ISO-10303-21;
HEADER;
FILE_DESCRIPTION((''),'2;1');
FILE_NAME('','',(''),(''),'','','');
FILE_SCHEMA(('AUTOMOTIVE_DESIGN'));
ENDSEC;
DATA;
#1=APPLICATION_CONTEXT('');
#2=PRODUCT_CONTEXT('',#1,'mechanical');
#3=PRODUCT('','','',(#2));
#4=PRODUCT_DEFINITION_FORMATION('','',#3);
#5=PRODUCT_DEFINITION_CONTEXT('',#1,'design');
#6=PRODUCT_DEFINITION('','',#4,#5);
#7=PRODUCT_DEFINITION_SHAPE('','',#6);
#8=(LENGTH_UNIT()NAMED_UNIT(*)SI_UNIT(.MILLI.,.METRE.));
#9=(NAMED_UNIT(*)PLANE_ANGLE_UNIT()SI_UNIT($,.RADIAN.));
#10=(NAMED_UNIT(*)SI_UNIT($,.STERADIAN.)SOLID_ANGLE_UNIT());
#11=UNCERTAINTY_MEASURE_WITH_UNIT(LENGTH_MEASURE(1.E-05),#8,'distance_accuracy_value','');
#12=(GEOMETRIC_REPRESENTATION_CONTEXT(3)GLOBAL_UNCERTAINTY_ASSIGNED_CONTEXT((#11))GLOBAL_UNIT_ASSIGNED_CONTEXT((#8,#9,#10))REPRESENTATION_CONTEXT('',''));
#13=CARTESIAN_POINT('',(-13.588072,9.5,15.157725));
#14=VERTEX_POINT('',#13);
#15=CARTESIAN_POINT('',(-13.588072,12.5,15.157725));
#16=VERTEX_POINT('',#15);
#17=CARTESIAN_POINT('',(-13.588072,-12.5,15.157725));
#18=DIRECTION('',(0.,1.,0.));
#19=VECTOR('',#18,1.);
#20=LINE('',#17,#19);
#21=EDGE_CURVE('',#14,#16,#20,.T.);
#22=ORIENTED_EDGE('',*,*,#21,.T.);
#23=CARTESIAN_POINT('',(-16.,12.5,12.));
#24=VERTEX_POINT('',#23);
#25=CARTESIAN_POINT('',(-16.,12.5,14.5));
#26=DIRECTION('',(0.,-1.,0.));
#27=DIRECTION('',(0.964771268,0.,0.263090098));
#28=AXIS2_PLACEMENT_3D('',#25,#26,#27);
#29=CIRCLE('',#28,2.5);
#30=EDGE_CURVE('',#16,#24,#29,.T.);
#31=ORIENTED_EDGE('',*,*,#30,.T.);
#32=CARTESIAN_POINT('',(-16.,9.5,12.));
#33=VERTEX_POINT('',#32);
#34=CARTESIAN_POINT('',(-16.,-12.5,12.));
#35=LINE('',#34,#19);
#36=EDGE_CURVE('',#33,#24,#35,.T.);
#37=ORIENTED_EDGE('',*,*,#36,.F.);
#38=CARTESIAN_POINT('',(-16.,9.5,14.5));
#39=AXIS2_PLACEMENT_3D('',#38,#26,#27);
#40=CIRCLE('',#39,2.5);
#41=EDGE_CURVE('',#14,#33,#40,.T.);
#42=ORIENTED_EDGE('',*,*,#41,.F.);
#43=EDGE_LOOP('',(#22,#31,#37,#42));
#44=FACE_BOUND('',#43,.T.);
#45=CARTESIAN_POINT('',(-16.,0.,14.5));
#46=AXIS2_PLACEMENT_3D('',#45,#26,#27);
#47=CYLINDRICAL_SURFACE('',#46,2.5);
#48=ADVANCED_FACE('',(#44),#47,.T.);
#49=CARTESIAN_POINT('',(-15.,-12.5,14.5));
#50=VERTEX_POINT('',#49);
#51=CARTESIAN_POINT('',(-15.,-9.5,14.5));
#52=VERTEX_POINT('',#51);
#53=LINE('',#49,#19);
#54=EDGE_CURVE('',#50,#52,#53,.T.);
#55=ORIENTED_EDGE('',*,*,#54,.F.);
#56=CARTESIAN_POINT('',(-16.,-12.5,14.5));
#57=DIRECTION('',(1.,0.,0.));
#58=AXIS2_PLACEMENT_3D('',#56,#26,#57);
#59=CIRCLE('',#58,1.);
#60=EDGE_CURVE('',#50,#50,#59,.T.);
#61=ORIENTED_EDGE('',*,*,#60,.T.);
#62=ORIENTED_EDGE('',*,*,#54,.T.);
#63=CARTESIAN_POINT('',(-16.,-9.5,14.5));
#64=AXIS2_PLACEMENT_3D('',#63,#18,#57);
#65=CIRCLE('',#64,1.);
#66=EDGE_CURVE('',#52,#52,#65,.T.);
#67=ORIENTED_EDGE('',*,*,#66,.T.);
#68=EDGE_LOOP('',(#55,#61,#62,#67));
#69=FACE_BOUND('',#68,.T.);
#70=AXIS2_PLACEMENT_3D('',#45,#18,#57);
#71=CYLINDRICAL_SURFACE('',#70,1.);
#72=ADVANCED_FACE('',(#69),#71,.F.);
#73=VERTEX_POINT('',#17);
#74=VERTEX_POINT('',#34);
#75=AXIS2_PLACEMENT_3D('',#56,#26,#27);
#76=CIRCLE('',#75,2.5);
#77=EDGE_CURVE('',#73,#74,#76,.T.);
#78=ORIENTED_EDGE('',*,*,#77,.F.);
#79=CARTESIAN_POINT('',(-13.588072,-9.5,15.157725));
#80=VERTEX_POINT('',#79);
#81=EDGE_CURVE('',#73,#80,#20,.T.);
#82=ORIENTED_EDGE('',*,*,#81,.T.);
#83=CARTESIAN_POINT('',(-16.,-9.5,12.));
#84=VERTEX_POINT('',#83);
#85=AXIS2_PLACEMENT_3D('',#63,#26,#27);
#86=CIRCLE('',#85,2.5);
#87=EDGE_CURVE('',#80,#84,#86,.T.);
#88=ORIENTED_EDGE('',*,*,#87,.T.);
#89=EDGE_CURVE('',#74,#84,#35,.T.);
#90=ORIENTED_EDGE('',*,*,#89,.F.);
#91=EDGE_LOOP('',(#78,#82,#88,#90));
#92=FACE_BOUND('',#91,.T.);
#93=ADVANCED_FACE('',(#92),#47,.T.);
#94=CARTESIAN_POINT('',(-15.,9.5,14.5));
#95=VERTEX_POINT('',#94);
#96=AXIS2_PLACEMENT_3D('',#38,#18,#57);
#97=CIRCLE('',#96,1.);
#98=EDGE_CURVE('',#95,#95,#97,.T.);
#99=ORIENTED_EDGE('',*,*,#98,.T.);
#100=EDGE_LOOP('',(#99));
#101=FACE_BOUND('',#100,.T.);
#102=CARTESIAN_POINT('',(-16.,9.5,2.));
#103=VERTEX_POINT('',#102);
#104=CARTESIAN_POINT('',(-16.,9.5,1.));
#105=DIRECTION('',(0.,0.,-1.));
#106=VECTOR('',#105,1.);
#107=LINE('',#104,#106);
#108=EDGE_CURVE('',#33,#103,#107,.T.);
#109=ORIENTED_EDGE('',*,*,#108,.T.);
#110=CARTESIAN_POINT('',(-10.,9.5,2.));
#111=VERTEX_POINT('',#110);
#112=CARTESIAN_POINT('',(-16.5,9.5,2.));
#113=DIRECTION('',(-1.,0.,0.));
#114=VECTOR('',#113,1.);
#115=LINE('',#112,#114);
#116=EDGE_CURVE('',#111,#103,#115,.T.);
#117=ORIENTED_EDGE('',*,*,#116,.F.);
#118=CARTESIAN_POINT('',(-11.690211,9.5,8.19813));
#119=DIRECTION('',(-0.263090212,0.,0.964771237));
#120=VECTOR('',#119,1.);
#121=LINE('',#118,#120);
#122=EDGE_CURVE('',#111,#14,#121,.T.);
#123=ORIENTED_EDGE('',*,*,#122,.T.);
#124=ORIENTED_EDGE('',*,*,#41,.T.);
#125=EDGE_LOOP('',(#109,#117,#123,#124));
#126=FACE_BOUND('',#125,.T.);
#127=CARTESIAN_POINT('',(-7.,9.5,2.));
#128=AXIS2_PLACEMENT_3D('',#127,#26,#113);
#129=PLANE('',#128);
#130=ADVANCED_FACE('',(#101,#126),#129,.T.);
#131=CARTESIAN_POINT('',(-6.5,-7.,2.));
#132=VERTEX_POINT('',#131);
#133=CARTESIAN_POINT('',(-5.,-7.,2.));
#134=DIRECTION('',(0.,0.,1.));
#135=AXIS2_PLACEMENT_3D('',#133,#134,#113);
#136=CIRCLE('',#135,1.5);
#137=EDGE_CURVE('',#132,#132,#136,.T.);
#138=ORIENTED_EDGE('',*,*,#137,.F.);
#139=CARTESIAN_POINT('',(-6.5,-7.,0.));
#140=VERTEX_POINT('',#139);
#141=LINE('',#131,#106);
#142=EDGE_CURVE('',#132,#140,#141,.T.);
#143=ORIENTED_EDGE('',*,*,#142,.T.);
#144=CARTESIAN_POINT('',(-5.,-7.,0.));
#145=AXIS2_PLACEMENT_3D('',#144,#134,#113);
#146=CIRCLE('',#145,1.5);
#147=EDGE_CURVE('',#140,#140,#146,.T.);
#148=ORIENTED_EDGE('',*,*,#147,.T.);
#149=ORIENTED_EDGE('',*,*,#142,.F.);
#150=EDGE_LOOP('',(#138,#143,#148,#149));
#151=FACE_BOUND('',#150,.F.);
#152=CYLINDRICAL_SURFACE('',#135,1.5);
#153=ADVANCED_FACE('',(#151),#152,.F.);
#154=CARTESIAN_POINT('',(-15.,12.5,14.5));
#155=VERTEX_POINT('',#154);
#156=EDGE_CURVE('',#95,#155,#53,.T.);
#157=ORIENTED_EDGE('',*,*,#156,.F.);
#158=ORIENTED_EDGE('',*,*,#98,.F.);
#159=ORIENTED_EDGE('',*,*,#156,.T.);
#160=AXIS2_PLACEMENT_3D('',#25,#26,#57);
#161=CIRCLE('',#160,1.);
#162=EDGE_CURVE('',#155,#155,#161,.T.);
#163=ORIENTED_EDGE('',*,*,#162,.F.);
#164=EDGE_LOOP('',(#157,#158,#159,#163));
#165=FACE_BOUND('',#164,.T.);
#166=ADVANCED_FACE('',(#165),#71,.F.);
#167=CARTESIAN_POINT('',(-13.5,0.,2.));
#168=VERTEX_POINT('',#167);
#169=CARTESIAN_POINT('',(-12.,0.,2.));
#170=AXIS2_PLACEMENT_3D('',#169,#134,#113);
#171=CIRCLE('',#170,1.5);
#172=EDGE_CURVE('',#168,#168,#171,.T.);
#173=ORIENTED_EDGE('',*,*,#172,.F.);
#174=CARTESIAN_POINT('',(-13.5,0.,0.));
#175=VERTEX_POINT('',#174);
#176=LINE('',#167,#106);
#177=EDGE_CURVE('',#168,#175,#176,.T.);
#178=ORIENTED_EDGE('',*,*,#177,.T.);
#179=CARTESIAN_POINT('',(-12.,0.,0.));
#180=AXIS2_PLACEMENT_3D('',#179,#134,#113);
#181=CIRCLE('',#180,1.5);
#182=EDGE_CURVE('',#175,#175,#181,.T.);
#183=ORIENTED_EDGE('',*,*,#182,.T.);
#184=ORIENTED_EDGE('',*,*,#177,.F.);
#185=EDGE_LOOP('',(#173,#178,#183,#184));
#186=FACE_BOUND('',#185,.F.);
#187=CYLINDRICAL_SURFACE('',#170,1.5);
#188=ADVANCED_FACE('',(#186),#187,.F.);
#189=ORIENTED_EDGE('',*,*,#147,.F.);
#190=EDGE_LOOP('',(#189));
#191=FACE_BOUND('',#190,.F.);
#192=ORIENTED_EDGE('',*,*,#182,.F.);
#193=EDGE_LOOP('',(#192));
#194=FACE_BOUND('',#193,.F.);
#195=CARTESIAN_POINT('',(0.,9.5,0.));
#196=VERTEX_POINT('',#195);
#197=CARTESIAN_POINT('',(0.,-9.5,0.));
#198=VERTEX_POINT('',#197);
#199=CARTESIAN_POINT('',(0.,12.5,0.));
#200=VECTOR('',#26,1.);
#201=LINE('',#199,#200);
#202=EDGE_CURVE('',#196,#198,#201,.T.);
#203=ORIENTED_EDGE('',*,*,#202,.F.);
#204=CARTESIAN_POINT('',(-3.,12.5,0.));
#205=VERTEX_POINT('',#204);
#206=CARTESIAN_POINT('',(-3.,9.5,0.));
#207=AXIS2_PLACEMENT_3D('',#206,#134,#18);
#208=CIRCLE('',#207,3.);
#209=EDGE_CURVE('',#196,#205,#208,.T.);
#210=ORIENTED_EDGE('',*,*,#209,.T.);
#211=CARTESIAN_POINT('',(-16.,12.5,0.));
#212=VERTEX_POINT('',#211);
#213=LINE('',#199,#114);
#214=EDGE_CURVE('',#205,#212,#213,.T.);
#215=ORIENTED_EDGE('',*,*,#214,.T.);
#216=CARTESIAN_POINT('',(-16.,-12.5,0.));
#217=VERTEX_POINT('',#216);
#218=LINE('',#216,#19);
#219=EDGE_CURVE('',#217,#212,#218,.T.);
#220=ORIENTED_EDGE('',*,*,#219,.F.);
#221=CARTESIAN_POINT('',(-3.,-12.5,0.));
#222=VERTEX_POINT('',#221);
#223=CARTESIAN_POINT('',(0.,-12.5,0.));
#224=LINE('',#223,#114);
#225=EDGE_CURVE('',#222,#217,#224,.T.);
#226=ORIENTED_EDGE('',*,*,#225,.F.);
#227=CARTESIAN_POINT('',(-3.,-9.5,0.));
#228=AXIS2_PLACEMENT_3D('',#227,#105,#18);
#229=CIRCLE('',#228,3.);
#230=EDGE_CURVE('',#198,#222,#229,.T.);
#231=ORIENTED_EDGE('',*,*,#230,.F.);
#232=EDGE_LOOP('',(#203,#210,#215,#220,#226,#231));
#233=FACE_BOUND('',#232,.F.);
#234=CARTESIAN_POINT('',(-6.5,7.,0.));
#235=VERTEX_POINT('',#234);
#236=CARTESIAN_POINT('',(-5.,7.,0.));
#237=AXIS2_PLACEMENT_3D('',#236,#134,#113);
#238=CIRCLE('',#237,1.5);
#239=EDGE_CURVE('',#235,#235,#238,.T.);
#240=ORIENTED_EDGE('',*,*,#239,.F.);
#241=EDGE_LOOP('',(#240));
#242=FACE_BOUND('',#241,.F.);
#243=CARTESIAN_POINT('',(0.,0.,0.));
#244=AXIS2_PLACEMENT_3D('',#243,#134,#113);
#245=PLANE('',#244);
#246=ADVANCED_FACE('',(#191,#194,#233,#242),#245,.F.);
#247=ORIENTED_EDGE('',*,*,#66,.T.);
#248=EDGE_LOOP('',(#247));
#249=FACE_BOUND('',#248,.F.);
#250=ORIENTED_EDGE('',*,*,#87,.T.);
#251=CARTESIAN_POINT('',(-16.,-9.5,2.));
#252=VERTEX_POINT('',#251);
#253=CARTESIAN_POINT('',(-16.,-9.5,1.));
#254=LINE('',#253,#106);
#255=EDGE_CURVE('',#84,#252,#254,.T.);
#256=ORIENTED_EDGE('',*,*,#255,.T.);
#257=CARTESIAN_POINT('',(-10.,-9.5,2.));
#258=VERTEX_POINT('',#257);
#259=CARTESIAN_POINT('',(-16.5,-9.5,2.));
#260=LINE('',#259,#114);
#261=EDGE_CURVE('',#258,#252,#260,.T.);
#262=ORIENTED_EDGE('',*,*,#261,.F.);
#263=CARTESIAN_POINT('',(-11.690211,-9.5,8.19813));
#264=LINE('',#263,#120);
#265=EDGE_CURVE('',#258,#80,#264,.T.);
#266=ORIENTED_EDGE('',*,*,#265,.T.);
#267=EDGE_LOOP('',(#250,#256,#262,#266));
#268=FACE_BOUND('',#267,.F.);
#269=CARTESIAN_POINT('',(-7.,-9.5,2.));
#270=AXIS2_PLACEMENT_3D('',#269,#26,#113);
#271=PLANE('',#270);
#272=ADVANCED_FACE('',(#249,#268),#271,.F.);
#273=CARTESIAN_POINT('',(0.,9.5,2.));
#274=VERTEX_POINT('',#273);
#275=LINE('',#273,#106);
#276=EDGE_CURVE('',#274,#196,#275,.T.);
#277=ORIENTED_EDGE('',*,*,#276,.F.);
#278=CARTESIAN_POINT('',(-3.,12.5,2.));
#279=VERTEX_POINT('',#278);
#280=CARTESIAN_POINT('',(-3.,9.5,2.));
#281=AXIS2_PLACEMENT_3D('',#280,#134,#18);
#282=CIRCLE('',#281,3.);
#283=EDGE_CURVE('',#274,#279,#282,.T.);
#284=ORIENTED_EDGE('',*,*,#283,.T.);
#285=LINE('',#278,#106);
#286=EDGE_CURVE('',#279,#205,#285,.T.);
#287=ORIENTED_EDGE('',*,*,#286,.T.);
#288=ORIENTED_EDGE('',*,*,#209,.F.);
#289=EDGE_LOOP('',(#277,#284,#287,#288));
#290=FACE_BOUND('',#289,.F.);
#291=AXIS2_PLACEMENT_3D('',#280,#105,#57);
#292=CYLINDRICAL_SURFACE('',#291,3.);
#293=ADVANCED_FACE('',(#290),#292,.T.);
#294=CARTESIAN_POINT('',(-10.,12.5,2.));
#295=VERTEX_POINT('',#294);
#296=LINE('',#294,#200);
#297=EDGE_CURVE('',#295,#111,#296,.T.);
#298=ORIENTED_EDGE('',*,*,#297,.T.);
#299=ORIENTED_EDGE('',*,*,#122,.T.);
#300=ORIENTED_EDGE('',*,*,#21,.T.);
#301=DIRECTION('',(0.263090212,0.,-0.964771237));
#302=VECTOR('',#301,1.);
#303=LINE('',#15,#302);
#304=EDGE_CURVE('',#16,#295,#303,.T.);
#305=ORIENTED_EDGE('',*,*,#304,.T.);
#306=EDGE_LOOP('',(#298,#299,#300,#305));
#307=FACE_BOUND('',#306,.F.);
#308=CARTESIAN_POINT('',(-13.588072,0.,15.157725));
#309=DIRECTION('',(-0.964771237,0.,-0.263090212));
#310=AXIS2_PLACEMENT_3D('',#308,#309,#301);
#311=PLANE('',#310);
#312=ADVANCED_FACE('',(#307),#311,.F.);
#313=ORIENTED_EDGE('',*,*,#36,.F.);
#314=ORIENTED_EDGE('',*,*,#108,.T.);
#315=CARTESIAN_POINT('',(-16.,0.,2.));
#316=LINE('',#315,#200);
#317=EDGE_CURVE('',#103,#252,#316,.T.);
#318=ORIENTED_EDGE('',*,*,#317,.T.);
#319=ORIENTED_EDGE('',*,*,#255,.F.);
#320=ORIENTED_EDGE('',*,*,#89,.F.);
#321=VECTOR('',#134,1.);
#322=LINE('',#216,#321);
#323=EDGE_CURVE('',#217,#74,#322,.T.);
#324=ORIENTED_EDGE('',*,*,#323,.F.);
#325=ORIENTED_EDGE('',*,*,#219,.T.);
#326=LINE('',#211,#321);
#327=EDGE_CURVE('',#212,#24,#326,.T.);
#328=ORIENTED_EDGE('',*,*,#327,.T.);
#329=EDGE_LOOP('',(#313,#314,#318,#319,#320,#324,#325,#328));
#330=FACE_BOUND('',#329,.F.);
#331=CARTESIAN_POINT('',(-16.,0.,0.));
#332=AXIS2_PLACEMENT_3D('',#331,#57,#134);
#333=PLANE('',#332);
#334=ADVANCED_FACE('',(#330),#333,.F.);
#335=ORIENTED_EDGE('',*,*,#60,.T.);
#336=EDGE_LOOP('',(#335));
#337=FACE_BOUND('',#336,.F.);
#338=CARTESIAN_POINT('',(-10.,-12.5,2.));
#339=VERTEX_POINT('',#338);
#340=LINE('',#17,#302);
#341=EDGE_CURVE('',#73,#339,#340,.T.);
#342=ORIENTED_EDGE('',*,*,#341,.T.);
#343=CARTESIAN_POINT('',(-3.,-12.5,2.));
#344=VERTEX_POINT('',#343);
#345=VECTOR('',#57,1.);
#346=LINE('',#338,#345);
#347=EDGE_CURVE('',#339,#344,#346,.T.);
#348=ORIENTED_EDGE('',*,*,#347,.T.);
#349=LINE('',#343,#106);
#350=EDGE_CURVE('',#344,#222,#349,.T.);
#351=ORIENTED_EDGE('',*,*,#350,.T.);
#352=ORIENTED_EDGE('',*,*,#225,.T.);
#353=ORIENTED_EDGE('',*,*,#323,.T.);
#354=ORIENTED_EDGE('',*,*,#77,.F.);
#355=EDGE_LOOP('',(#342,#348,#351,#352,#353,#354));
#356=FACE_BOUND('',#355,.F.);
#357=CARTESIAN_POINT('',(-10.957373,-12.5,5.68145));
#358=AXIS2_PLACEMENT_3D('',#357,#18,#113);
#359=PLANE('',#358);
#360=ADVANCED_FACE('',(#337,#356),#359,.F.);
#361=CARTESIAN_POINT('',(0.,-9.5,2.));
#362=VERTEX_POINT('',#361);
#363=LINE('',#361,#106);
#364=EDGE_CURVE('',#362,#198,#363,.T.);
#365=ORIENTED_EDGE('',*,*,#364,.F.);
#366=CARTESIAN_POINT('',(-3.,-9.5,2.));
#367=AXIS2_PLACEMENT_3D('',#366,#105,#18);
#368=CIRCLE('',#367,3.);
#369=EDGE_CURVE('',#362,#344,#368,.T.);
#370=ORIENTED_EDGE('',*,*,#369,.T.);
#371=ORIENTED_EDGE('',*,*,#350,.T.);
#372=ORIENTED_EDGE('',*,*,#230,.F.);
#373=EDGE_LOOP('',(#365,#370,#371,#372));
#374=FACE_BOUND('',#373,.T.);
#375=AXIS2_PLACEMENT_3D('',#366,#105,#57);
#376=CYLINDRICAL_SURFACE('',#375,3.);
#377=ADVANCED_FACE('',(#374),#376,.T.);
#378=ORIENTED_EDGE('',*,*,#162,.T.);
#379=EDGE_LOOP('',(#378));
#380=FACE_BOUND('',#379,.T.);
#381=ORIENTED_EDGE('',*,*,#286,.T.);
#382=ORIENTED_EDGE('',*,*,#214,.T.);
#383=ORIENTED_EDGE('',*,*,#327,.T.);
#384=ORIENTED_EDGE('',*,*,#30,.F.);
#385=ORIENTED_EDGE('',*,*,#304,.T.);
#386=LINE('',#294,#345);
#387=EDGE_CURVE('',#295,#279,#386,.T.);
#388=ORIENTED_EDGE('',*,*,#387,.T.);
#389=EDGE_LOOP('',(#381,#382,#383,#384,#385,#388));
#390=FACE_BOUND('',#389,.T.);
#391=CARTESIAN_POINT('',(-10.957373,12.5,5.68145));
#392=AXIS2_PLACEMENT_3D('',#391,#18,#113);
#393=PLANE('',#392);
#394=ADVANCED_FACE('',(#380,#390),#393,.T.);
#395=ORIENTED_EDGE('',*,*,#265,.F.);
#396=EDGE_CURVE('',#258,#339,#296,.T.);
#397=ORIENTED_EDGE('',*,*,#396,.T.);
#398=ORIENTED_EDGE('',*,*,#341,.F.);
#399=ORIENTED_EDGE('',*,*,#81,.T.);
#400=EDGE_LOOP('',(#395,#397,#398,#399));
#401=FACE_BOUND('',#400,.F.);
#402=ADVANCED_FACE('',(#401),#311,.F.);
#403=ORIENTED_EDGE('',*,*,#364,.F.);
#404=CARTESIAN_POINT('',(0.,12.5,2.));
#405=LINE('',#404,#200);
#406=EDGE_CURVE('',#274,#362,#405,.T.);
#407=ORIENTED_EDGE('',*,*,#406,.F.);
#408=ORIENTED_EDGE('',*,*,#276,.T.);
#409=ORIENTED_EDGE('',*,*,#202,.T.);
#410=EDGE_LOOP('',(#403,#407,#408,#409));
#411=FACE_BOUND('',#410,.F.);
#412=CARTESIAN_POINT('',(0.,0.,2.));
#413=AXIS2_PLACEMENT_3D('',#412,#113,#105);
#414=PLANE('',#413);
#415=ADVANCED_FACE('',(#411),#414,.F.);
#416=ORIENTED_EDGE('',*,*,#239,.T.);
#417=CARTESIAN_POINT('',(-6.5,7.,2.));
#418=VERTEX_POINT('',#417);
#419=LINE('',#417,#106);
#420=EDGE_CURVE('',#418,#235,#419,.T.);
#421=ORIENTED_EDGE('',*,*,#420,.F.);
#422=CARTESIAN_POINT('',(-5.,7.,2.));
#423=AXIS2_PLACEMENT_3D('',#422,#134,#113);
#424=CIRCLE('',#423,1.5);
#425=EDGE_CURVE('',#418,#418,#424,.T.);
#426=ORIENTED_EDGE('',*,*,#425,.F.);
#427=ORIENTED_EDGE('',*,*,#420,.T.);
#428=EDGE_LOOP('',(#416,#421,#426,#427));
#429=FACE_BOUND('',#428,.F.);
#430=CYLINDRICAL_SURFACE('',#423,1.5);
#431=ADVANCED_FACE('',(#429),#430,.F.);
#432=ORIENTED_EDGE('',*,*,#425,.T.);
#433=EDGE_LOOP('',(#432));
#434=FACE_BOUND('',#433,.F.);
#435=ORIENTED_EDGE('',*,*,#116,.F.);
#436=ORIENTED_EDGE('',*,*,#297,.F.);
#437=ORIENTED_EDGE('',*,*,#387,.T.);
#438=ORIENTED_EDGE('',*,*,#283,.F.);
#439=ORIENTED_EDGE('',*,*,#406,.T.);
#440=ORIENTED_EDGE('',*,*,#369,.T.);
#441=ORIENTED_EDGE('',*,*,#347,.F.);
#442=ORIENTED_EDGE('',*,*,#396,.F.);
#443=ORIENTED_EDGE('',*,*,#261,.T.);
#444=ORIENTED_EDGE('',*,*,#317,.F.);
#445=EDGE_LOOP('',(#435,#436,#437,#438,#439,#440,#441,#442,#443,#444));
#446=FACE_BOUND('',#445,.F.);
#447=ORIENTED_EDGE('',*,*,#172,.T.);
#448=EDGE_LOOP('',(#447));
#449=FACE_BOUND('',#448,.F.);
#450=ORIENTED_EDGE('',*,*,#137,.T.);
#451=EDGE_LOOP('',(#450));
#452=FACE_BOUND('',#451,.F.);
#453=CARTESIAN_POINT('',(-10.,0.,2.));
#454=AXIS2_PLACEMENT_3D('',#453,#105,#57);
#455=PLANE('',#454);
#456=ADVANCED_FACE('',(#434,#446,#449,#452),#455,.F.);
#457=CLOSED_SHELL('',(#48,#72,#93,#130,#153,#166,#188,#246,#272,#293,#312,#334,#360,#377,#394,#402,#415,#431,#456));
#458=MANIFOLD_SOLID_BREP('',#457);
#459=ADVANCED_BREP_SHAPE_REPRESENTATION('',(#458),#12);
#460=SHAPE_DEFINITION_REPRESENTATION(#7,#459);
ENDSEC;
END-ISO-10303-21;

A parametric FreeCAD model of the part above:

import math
import FreeCAD as App
import Part
import Sketcher


def edges_at(feature, points):
    """Names of the edges that pass closest to the given points."""
    edges = feature.Shape.Edges
    near = lambda p: min(range(len(edges)), key=lambda i: edges[i].distToShape(Part.Vertex(*p))[0])
    return sorted({f"Edge{near(p) + 1}" for p in points})

doc = App.newDocument("Part")
body = doc.addObject("PartDesign::Body", "Body")

# Sketch on XZ plane
sketch1 = doc.addObject("Sketcher::SketchObject", "Sketch")
body.addObject(sketch1)
sketch1.AttachmentSupport = (doc.XZ_Plane, [""])
sketch1.MapMode = "FlatFace"
sketch1.addGeometry([
    Part.LineSegment(App.Vector(-16, 0, 0), App.Vector(0, 0, 0)),  # 0
    Part.LineSegment(App.Vector(0, 0, 0), App.Vector(0, 2, 0)),  # 1
    Part.LineSegment(App.Vector(0, 2, 0), App.Vector(-10, 2, 0)),  # 2
    Part.LineSegment(App.Vector(-10, 2, 0), App.Vector(-13.6, 15.2, 0)),  # 3
    Part.ArcOfCircle(Part.Circle(App.Vector(-16, 14.5, 0), App.Vector(0, 0, 1), 2.5), math.radians(15), math.radians(270)),  # 4
    Part.LineSegment(App.Vector(-16, 12, 0), App.Vector(-16, 0, 0)),  # 5
    Part.Circle(App.Vector(-16, 14.5, 0), App.Vector(0, 0, 1), 1),  # 6
], False)
sketch1.addConstraint([
    Sketcher.Constraint("Coincident", 0, 2, 1, 1),
    Sketcher.Constraint("Coincident", 1, 2, 2, 1),
    Sketcher.Constraint("Coincident", 2, 2, 3, 1),
    Sketcher.Constraint("Tangent", 3, 2, 4, 1),
    Sketcher.Constraint("Coincident", 4, 2, 5, 1),
    Sketcher.Constraint("Coincident", 5, 2, 0, 1),
    Sketcher.Constraint("Horizontal", 0),
    Sketcher.Constraint("Vertical", 1),
    Sketcher.Constraint("Horizontal", 2),
    Sketcher.Constraint("Vertical", 5),
    Sketcher.Constraint("Coincident", 0, 2, -1, 1),
    Sketcher.Constraint("Coincident", 6, 3, 4, 3),
    Sketcher.Constraint("Vertical", 6, 3, 4, 2),
    Sketcher.Constraint("Diameter", 6, 2.0),
    Sketcher.Constraint("Radius", 4, 2.5),
    Sketcher.Constraint("DistanceX", 0, 1, 0, 2, 16.0),
    Sketcher.Constraint("DistanceX", 2, 2, 2, 1, 10.0),
    Sketcher.Constraint("DistanceY", 1, 1, 1, 2, 2.0),
    Sketcher.Constraint("DistanceY", 5, 2, 5, 1, 12.0),
])
pad1 = doc.addObject("PartDesign::Pad", "Pad")
body.addObject(pad1)
pad1.Profile = sketch1
pad1.Length = 25
pad1.Midplane = True

# Sketch on XY plane
sketch2 = doc.addObject("Sketcher::SketchObject", "Sketch001")
body.addObject(sketch2)
sketch2.AttachmentSupport = (doc.XY_Plane, [""])
sketch2.MapMode = "FlatFace"
sketch2.AttachmentOffset = App.Placement(App.Vector(0, 0, 2), App.Rotation())
sketch2.addGeometry([
    Part.LineSegment(App.Vector(-7, -10, 0), App.Vector(-7, 10, 0)),
    Part.LineSegment(App.Vector(-7, 10, 0), App.Vector(-26, 10, 0)),
    Part.LineSegment(App.Vector(-26, 10, 0), App.Vector(-26, -10, 0)),
    Part.LineSegment(App.Vector(-26, -10, 0), App.Vector(-7, -10, 0)),
], False)
sketch2.addConstraint([
    Sketcher.Constraint("Coincident", 0, 2, 1, 1),
    Sketcher.Constraint("Coincident", 1, 2, 2, 1),
    Sketcher.Constraint("Coincident", 2, 2, 3, 1),
    Sketcher.Constraint("Coincident", 3, 2, 0, 1),
    Sketcher.Constraint("Vertical", 0),
    Sketcher.Constraint("Horizontal", 1),
    Sketcher.Constraint("Vertical", 2),
    Sketcher.Constraint("Horizontal", 3),
    Sketcher.Constraint("Equal", 3, 0),
    Sketcher.Constraint("DistanceX", 1, 2, 1, 1, 19.0),
    Sketcher.Constraint("DistanceX", 0, 2, -1, 1, 7.0),
    Sketcher.Constraint("DistanceY", -1, 1, 0, 2, 9.5),
])
pocket1 = doc.addObject("PartDesign::Pocket", "Pocket")
body.addObject(pocket1)
pocket1.Profile = sketch2
pocket1.Length = 19
pocket1.Reversed = True

# Sketch on XY plane
sketch3 = doc.addObject("Sketcher::SketchObject", "Sketch002")
body.addObject(sketch3)
sketch3.AttachmentSupport = (doc.XY_Plane, [""])
sketch3.MapMode = "FlatFace"
sketch3.AttachmentOffset = App.Placement(App.Vector(0, 0, 2), App.Rotation())
sketch3.addGeometry([
    Part.Circle(App.Vector(-12, 0, 0), App.Vector(0, 0, 1), 1.5),
    Part.Circle(App.Vector(-5, -7, 0), App.Vector(0, 0, 1), 1.5),
    Part.Circle(App.Vector(-5, 7, 0), App.Vector(0, 0, 1), 1.5),
], False)
sketch3.addConstraint([
    Sketcher.Constraint("Equal", 0, 1),
    Sketcher.Constraint("Equal", 1, 2),
    Sketcher.Constraint("Symmetric", 1, 3, 2, 3, -1),
    Sketcher.Constraint("PointOnObject", 0, 3, -1),
    Sketcher.Constraint("Diameter", 0, 3.0),
    Sketcher.Constraint("DistanceX", 0, 3, -1, 1, 12.0),
    Sketcher.Constraint("DistanceX", 1, 3, -1, 1, 5.0),
    Sketcher.Constraint("DistanceY", 1, 3, -1, 1, 7.0),
])
pocket2 = doc.addObject("PartDesign::Pocket", "Pocket001")
body.addObject(pocket2)
pocket2.Profile = sketch3
pocket2.Type = "ThroughAll"
doc.recompute()

fillet = doc.addObject("PartDesign::Fillet", "Fillet")
body.addObject(fillet)
fillet.Base = (pocket2, edges_at(pocket2, [(0, 12.5, 1), (0, -12.5, 1)]))
fillet.Radius = 3

doc.recompute()
